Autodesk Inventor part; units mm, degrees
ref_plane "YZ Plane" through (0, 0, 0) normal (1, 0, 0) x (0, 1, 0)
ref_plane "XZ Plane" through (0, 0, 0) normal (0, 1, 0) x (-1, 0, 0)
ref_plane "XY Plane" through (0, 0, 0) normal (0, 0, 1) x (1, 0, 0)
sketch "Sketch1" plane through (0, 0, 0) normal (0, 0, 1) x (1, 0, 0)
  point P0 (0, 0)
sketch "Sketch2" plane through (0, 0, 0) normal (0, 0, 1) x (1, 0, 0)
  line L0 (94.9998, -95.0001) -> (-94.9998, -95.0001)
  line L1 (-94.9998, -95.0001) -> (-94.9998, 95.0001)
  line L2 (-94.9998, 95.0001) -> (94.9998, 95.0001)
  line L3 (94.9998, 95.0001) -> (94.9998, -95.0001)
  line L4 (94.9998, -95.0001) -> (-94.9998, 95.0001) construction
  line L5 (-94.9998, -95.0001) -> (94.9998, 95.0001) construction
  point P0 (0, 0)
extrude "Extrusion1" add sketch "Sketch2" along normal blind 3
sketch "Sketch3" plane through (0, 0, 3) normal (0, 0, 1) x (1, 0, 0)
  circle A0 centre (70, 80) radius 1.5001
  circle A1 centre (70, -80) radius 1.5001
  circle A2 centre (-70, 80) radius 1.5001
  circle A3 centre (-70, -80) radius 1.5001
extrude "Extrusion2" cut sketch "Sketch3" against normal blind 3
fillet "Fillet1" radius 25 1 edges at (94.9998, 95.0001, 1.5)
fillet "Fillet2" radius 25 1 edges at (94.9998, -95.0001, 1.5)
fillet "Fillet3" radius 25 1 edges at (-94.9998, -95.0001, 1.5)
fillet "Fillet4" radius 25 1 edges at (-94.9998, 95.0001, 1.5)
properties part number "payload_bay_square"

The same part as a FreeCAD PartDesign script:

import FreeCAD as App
import Part
import Sketcher

V = App.Vector


def edges_at(feature, points):
    """Names of the edges that pass closest to the given points."""
    edges = feature.Shape.Edges
    near = lambda p: min(range(len(edges)), key=lambda i: edges[i].distToShape(Part.Vertex(*p))[0])
    return sorted({f"Edge{near(p) + 1}" for p in points})

doc = App.newDocument("Part")
params = doc.addObject("Spreadsheet::Sheet", "Params")
for row, (alias, value) in enumerate([
    ("pad1_length", "3 mm"),
    ("pocket1_length", "3 mm"),
    ("fillet_radius", "25 mm"),
    ("fillet2_radius", "25 mm"),
    ("fillet3_radius", "25 mm"),
    ("fillet4_radius", "25 mm"),
], start=1):
    params.set(f"A{row}", alias)
    params.set(f"B{row}", "=" + value)
    params.setAlias(f"B{row}", alias)

body = doc.addObject("PartDesign::Body", "Body")

sketch1 = doc.addObject("Sketcher::SketchObject", "Sketch")
body.addObject(sketch1)
sketch1.AttachmentSupport = (doc.XY_Plane, [""])
sketch1.MapMode = "FlatFace"
sketch1.addGeometry(Part.LineSegment(V(-95, -95, 0), V(95, -95, 0)), False)
sketch1.addGeometry(Part.LineSegment(V(95, -95, 0), V(95, 95, 0)), False)
sketch1.addGeometry(Part.LineSegment(V(95, 95, 0), V(-95, 95, 0)), False)
sketch1.addGeometry(Part.LineSegment(V(-95, 95, 0), V(-95, -95, 0)), False)
sketch1.addConstraint(Sketcher.Constraint("Coincident", 0, 2, 1, 1))
sketch1.addConstraint(Sketcher.Constraint("Coincident", 1, 2, 2, 1))
sketch1.addConstraint(Sketcher.Constraint("Coincident", 2, 2, 3, 1))
sketch1.addConstraint(Sketcher.Constraint("Coincident", 3, 2, 0, 1))
sketch1.addConstraint(Sketcher.Constraint("Horizontal", 0))
sketch1.addConstraint(Sketcher.Constraint("Vertical", 1))
sketch1.addConstraint(Sketcher.Constraint("Horizontal", 2))
sketch1.addConstraint(Sketcher.Constraint("Vertical", 3))
sketch1.addConstraint(Sketcher.Constraint("Symmetric", 0, 2, 2, 2, -1, 1))
sketch1.addConstraint(Sketcher.Constraint("DistanceY", 0, 2, -1, 1, 95.0))
sketch1.addConstraint(Sketcher.Constraint("DistanceX", 0, 1, 0, 2, 189.9996))
pad1 = doc.addObject("PartDesign::Pad", "Pad")
body.addObject(pad1)
pad1.Profile = sketch1
pad1.setExpression("Length", "Params.pad1_length")

sketch2 = doc.addObject("Sketcher::SketchObject", "Sketch001")
body.addObject(sketch2)
sketch2.AttachmentSupport = (doc.XY_Plane, [""])
sketch2.MapMode = "FlatFace"
sketch2.AttachmentOffset = App.Placement(V(0, 0, 3), App.Rotation())
sketch2.addGeometry(Part.Circle(V(70, 80, 0), V(0, 0, 1), 1.5), False)
sketch2.addGeometry(Part.Circle(V(70, -80, 0), V(0, 0, 1), 1.5), False)
sketch2.addGeometry(Part.Circle(V(-70, 80, 0), V(0, 0, 1), 1.5), False)
sketch2.addGeometry(Part.Circle(V(-70, -80, 0), V(0, 0, 1), 1.5), False)
sketch2.addConstraint(Sketcher.Constraint("Equal", 0, 1))
sketch2.addConstraint(Sketcher.Constraint("Equal", 1, 2))
sketch2.addConstraint(Sketcher.Constraint("Equal", 2, 3))
sketch2.addConstraint(Sketcher.Constraint("Symmetric", 1, 3, 2, 3, -1, 1))
sketch2.addConstraint(Sketcher.Constraint("Symmetric", 0, 3, 3, 3, -1, 1))
sketch2.addConstraint(Sketcher.Constraint("Symmetric", 0, 3, 2, 3, -2))
sketch2.addConstraint(Sketcher.Constraint("DistanceX", -1, 1, 0, 3, 70.0))
sketch2.addConstraint(Sketcher.Constraint("DistanceY", -1, 1, 0, 3, 80.0))
sketch2.addConstraint(Sketcher.Constraint("Diameter", 0, 3.0002))
pocket1 = doc.addObject("PartDesign::Pocket", "Pocket")
body.addObject(pocket1)
pocket1.Profile = sketch2
pocket1.setExpression("Length", "Params.pocket1_length")
doc.recompute()

fillet = doc.addObject("PartDesign::Fillet", "Fillet")
body.addObject(fillet)
fillet.Base = (pocket1, edges_at(pocket1, [(95, 95, 1.5)]))
fillet.setExpression("Radius", "Params.fillet_radius")
doc.recompute()

fillet2 = doc.addObject("PartDesign::Fillet", "Fillet001")
body.addObject(fillet2)
fillet2.Base = (fillet, edges_at(fillet, [(95, -95, 1.5)]))
fillet2.setExpression("Radius", "Params.fillet2_radius")
doc.recompute()

fillet3 = doc.addObject("PartDesign::Fillet", "Fillet002")
body.addObject(fillet3)
fillet3.Base = (fillet2, edges_at(fillet2, [(-95, -95, 1.5)]))
fillet3.setExpression("Radius", "Params.fillet3_radius")
doc.recompute()

fillet4 = doc.addObject("PartDesign::Fillet", "Fillet003")
body.addObject(fillet4)
fillet4.Base = (fillet3, edges_at(fillet3, [(-95, 95, 1.5)]))
fillet4.setExpression("Radius", "Params.fillet4_radius")

doc.recompute()
